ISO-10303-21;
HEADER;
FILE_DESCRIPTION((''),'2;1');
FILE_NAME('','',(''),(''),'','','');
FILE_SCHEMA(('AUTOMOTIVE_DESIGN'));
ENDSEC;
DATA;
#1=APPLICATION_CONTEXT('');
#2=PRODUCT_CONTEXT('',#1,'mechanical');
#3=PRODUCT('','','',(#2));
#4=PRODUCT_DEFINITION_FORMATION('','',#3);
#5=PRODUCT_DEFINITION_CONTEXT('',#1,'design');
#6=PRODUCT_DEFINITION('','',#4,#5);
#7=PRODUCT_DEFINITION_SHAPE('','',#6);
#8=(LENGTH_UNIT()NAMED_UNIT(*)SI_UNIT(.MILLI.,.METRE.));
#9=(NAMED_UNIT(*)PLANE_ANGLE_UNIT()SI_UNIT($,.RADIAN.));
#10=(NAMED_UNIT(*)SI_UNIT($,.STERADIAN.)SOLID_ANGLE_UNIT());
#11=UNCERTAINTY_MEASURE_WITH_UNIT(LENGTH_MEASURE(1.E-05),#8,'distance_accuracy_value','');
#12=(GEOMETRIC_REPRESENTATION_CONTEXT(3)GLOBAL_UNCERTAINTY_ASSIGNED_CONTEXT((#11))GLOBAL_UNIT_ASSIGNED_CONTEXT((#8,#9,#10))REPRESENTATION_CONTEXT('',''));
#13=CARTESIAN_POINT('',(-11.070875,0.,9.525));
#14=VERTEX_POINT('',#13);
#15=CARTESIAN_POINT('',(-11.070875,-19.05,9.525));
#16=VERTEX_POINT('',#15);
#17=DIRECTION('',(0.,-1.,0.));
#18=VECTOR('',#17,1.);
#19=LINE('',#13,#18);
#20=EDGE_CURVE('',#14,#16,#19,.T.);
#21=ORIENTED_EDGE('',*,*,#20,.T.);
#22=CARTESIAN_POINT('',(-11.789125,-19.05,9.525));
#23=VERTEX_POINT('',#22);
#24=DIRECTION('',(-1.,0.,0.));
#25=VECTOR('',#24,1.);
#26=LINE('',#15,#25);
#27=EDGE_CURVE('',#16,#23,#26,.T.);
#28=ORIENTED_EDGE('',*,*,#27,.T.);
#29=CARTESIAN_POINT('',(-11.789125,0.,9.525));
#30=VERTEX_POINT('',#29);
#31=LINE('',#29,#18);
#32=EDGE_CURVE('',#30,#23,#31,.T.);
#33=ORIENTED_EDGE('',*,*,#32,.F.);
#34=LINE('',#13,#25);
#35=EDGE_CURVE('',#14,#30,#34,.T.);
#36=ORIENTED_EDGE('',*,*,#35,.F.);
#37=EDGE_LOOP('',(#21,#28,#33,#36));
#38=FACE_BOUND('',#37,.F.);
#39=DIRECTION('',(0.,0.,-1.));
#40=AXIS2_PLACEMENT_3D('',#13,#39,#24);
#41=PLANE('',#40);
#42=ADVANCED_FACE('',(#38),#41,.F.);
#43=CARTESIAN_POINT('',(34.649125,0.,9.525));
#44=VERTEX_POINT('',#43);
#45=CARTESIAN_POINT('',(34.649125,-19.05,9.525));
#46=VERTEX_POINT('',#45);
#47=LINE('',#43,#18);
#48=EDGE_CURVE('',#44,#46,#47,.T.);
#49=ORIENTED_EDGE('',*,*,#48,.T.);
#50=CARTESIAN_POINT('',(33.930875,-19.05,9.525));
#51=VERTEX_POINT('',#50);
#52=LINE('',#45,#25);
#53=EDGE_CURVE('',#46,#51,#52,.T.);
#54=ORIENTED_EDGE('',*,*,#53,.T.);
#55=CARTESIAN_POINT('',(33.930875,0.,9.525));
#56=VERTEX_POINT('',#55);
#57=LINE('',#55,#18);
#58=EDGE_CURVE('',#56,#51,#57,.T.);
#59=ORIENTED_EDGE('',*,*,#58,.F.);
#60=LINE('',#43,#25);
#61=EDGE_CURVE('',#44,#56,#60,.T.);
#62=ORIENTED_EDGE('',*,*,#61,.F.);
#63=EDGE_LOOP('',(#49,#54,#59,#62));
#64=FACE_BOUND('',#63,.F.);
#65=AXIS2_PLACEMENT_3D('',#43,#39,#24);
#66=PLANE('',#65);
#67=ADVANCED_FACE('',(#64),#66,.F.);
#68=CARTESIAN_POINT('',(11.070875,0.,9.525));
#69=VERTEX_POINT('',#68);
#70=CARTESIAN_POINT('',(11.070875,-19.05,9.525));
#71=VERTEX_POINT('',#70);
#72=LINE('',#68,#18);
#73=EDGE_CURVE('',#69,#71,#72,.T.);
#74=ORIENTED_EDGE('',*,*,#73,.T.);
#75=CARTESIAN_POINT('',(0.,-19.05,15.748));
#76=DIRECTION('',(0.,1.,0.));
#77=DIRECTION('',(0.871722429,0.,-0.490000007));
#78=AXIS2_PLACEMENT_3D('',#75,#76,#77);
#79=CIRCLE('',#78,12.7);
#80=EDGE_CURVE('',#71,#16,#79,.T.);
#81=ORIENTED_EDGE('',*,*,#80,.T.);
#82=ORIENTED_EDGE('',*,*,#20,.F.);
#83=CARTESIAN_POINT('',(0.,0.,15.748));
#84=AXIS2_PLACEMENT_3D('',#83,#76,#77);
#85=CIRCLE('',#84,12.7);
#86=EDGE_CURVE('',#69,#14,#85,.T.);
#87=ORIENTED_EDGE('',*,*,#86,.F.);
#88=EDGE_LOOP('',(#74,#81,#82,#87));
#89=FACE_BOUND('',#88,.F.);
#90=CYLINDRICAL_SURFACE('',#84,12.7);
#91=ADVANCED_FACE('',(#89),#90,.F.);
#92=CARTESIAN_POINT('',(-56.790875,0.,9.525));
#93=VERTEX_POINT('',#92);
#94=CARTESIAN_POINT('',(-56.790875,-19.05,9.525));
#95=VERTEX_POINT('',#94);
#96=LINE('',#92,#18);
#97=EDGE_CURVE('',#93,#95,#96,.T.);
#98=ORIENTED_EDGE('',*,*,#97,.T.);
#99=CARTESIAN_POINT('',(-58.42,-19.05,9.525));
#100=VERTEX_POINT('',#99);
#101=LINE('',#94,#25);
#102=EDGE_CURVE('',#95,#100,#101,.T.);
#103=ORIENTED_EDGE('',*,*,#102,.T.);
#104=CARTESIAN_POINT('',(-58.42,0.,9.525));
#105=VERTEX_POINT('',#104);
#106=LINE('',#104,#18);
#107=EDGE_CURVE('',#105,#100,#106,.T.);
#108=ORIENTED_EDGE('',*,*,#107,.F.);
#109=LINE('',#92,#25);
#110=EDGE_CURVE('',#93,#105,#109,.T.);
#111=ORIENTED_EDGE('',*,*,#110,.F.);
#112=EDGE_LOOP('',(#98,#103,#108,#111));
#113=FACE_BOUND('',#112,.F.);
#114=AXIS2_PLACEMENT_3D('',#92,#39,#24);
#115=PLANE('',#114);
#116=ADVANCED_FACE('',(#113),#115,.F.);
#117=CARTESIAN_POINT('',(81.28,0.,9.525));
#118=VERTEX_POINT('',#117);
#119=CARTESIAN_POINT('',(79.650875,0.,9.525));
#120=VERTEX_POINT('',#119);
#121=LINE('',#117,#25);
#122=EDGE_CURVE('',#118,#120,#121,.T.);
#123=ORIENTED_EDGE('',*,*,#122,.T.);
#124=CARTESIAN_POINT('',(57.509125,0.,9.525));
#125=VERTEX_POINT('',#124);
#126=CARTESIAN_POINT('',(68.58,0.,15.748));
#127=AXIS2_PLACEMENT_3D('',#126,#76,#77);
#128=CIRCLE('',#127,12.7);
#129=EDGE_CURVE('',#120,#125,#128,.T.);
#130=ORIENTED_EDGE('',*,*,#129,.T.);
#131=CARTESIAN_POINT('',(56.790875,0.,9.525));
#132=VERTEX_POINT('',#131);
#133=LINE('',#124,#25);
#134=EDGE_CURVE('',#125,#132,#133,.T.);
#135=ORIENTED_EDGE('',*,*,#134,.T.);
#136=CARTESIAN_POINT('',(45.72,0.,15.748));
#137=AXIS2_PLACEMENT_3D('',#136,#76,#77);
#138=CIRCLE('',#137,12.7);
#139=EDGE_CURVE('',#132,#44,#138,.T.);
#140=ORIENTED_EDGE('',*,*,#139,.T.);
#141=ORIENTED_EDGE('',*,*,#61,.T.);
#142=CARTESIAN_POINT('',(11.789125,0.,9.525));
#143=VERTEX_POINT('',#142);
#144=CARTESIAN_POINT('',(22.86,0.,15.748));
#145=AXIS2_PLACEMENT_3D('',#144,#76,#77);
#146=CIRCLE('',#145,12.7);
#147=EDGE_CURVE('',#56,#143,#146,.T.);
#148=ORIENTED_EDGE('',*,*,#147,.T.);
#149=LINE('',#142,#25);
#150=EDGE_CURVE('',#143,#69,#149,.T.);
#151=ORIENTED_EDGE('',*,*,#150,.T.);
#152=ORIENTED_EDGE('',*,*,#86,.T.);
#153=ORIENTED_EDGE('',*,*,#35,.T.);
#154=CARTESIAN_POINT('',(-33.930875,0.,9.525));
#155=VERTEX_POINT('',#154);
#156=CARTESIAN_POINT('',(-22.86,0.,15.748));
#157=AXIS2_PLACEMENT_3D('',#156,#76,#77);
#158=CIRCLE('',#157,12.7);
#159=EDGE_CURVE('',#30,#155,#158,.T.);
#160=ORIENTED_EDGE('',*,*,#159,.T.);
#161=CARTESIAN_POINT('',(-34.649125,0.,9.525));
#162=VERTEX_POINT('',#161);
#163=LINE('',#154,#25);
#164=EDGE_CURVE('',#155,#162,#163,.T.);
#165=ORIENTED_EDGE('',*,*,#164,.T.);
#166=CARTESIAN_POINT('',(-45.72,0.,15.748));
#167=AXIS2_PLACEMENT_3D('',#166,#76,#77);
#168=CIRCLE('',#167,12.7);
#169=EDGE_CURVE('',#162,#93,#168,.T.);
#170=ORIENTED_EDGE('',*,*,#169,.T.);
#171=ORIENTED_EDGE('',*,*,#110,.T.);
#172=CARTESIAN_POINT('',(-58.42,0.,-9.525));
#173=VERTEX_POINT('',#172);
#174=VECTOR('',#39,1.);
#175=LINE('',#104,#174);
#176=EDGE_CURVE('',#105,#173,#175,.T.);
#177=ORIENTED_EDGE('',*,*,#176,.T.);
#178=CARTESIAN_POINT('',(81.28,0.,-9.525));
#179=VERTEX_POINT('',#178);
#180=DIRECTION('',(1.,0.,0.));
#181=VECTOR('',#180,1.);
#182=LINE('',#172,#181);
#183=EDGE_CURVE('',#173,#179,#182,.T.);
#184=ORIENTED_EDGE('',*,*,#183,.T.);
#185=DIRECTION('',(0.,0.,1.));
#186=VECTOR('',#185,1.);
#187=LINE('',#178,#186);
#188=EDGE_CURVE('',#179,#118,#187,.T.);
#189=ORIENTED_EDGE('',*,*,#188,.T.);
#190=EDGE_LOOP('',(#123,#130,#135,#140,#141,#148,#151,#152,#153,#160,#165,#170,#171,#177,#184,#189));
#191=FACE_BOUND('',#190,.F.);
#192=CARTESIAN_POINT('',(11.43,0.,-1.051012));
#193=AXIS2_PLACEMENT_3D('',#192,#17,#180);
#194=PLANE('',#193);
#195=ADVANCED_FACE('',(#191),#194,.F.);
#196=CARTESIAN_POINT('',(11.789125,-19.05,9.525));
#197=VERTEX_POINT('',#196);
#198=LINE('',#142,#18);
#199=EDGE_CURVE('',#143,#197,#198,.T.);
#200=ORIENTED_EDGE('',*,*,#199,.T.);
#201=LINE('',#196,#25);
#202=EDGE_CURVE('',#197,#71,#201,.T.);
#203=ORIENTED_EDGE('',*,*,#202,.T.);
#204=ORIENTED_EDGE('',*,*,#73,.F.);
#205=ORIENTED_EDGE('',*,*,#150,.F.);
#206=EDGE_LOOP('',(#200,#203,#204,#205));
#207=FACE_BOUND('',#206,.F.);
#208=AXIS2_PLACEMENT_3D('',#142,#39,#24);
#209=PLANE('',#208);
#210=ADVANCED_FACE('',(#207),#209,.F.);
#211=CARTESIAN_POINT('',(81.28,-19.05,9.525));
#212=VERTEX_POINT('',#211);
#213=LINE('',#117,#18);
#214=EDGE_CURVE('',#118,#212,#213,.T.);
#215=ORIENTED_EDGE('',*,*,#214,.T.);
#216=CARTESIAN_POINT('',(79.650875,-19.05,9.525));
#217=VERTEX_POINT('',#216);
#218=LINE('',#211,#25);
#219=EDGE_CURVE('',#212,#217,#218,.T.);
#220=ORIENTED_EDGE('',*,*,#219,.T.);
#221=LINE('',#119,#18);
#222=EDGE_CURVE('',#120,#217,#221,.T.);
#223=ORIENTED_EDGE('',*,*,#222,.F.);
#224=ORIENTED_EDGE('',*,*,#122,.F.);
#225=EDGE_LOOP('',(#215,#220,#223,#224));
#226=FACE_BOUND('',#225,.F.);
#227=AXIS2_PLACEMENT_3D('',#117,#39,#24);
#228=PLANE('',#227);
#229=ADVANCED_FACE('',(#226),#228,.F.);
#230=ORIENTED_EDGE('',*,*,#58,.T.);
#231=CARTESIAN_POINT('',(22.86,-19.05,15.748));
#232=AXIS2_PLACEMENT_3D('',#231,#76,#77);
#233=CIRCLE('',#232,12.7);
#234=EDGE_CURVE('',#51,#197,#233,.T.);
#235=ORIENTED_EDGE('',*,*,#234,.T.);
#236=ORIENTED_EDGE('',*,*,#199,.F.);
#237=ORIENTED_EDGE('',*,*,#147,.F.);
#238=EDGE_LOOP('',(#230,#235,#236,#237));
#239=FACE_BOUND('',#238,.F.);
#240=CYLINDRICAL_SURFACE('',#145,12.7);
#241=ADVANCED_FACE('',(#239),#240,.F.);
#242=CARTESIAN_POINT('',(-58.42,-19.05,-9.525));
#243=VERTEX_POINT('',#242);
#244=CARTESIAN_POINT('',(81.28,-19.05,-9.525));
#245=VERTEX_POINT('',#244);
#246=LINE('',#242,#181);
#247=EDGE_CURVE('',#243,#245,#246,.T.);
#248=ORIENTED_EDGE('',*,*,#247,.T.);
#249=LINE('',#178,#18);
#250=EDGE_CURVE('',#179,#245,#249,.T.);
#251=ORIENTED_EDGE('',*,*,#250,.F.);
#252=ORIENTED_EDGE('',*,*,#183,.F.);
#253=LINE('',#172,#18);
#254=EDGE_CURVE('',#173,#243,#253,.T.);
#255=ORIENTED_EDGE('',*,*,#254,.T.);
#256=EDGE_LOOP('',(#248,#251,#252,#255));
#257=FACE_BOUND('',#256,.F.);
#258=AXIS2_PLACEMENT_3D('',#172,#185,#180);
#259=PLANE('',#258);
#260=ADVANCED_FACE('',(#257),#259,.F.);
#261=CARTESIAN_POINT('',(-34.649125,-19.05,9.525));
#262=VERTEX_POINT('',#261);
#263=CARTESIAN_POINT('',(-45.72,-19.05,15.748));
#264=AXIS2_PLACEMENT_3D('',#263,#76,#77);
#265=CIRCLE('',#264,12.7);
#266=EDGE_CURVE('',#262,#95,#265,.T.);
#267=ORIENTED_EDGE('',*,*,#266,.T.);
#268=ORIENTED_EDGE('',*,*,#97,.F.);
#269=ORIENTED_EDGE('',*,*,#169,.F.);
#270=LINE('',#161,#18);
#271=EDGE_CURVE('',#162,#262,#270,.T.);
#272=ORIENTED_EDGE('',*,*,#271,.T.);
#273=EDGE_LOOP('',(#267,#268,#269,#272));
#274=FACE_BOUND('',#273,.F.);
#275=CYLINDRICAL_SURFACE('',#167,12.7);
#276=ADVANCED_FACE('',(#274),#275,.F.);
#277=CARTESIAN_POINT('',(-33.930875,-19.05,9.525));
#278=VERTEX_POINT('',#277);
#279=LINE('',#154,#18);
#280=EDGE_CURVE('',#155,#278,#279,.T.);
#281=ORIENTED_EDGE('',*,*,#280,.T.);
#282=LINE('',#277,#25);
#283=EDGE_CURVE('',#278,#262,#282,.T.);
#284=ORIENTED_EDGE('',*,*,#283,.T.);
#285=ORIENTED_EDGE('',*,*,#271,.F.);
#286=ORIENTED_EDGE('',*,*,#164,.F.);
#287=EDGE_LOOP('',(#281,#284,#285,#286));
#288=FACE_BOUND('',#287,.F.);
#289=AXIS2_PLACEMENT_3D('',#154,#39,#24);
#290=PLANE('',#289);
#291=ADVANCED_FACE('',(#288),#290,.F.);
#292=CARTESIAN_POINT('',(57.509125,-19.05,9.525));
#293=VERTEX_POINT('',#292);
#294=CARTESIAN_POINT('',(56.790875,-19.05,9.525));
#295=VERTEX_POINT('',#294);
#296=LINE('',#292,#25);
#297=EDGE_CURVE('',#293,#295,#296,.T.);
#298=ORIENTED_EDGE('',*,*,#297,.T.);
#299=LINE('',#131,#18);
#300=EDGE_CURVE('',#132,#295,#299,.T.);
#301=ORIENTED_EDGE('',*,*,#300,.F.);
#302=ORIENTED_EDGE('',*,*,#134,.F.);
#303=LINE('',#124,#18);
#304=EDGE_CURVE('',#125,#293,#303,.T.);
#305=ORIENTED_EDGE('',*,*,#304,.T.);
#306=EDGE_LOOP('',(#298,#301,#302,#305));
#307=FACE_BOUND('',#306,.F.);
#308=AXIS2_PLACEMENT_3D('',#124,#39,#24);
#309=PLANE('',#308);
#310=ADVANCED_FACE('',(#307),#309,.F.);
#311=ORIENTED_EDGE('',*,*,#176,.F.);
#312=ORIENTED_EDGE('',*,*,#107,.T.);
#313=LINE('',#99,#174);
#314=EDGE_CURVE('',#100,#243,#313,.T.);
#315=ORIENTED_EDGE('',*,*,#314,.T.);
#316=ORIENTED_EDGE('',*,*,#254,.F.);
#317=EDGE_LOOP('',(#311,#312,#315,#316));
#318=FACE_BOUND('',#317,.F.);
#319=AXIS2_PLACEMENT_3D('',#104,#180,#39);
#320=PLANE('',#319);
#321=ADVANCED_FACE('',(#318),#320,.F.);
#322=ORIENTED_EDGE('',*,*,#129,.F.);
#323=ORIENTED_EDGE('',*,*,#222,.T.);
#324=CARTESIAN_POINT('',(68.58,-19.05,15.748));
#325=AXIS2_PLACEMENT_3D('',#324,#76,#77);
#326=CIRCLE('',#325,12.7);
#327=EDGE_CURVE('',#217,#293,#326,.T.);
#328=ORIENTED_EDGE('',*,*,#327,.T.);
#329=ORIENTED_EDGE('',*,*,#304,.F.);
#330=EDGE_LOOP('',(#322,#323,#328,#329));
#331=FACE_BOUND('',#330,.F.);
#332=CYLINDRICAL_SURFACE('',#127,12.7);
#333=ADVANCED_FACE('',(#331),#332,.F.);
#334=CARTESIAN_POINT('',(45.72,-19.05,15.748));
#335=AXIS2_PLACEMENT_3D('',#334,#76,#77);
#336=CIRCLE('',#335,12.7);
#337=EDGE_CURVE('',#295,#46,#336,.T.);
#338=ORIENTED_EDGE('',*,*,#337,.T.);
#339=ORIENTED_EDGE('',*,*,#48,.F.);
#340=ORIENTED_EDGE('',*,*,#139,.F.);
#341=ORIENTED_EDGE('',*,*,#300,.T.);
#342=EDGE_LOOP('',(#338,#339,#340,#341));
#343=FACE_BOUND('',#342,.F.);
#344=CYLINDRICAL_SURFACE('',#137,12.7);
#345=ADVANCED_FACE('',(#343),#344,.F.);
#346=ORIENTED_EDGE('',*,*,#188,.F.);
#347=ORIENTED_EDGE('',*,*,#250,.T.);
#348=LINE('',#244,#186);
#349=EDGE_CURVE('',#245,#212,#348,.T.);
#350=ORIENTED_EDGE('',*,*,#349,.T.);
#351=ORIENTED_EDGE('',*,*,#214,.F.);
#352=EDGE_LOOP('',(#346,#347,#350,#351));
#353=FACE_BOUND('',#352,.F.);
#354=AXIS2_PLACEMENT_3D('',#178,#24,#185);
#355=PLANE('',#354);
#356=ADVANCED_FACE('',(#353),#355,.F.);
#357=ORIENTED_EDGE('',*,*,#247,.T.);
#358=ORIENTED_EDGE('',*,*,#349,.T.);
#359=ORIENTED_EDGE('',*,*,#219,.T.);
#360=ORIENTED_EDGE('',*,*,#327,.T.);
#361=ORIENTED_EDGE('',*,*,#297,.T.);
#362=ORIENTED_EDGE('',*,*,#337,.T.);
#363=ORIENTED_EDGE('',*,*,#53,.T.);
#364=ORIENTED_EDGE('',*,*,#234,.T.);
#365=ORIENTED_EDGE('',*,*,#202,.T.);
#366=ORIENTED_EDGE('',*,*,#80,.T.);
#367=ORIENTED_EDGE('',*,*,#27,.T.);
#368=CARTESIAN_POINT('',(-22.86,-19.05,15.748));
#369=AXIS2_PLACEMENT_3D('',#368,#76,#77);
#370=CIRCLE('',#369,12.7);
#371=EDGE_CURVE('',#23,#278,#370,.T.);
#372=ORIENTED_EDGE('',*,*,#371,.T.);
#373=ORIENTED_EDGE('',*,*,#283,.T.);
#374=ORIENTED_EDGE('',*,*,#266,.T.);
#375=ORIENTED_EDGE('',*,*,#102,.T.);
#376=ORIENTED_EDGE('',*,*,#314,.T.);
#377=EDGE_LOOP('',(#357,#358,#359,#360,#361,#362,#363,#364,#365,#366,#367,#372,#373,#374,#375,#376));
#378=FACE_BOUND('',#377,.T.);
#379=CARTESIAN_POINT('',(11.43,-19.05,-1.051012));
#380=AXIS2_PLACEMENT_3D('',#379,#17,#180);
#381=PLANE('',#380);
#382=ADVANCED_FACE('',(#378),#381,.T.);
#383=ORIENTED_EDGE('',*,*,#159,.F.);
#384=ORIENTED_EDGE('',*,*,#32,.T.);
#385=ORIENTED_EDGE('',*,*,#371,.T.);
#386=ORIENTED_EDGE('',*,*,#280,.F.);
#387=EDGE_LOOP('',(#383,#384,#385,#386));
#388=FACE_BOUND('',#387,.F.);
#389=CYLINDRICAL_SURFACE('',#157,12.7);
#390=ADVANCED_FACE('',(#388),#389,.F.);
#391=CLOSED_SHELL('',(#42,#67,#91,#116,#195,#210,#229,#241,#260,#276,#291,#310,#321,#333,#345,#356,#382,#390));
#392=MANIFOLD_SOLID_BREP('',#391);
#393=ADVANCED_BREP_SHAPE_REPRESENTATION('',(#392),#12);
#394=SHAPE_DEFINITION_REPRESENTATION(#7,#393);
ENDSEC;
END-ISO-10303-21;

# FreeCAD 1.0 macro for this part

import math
import FreeCAD as App
import Part
import Sketcher
Q = App.Units.Quantity

doc = App.newDocument("Part")
body = doc.addObject("PartDesign::Body", "Body")

sketch1 = body.newObject("Sketcher::SketchObject", "Sketch")
sketch1.AttachmentSupport = (doc.getObject("XZ_Plane"), [""])
sketch1.MapMode = "FlatFace"
sketch1.addGeometry(Part.LineSegment(App.Vector(-56.8, 9.5, 0), App.Vector(-58.4, 9.5, 0)), False)
sketch1.addGeometry(Part.LineSegment(App.Vector(-58.4, 9.5, 0), App.Vector(-58.4, -9.5, 0)), False)
sketch1.addGeometry(Part.LineSegment(App.Vector(-58.4, -9.5, 0), App.Vector(81.3, -9.5, 0)), False)
sketch1.addGeometry(Part.LineSegment(App.Vector(81.3, -9.5, 0), App.Vector(81.3, 9.5, 0)), False)
sketch1.addGeometry(Part.LineSegment(App.Vector(81.3, 9.5, 0), App.Vector(79.7, 9.5, 0)), False)
sketch1.addGeometry(Part.ArcOfCircle(Part.Circle(App.Vector(68.6, 15.7, 0), App.Vector(0, 0, 1), 12.7), math.radians(-151), math.radians(-29)), False)
sketch1.addGeometry(Part.LineSegment(App.Vector(57.5, 9.5, 0), App.Vector(56.8, 9.5, 0)), False)
sketch1.addGeometry(Part.ArcOfCircle(Part.Circle(App.Vector(45.7, 15.7, 0), App.Vector(0, 0, 1), 12.7), math.radians(-151), math.radians(-29)), False)
sketch1.addGeometry(Part.LineSegment(App.Vector(34.6, 9.5, 0), App.Vector(33.9, 9.5, 0)), False)
sketch1.addGeometry(Part.ArcOfCircle(Part.Circle(App.Vector(22.9, 15.7, 0), App.Vector(0, 0, 1), 12.7), math.radians(-151), math.radians(-29)), False)
sketch1.addGeometry(Part.LineSegment(App.Vector(11.8, 9.5, 0), App.Vector(11.1, 9.5, 0)), False)
sketch1.addGeometry(Part.ArcOfCircle(Part.Circle(App.Vector(0, 15.7, 0), App.Vector(0, 0, 1), 12.7), math.radians(-151), math.radians(-29)), False)
sketch1.addGeometry(Part.LineSegment(App.Vector(-11.1, 9.5, 0), App.Vector(-11.8, 9.5, 0)), False)
sketch1.addGeometry(Part.ArcOfCircle(Part.Circle(App.Vector(-22.9, 15.7, 0), App.Vector(0, 0, 1), 12.7), math.radians(-151), math.radians(-29)), False)
sketch1.addGeometry(Part.LineSegment(App.Vector(-33.9, 9.5, 0), App.Vector(-34.6, 9.5, 0)), False)
sketch1.addGeometry(Part.ArcOfCircle(Part.Circle(App.Vector(-45.7, 15.7, 0), App.Vector(0, 0, 1), 12.7), math.radians(-151), math.radians(-29)), False)
sketch1.addConstraint(Sketcher.Constraint("Coincident", 0, 2, 1, 1))
sketch1.addConstraint(Sketcher.Constraint("Coincident", 1, 2, 2, 1))
sketch1.addConstraint(Sketcher.Constraint("Coincident", 2, 2, 3, 1))
sketch1.addConstraint(Sketcher.Constraint("Coincident", 3, 2, 4, 1))
sketch1.addConstraint(Sketcher.Constraint("Coincident", 4, 2, 5, 2))
sketch1.addConstraint(Sketcher.Constraint("Coincident", 5, 1, 6, 1))
sketch1.addConstraint(Sketcher.Constraint("Coincident", 6, 2, 7, 2))
sketch1.addConstraint(Sketcher.Constraint("Coincident", 7, 1, 8, 1))
sketch1.addConstraint(Sketcher.Constraint("Coincident", 8, 2, 9, 2))
sketch1.addConstraint(Sketcher.Constraint("Coincident", 9, 1, 10, 1))
sketch1.addConstraint(Sketcher.Constraint("Coincident", 10, 2, 11, 2))
sketch1.addConstraint(Sketcher.Constraint("Coincident", 11, 1, 12, 1))
sketch1.addConstraint(Sketcher.Constraint("Coincident", 12, 2, 13, 2))
sketch1.addConstraint(Sketcher.Constraint("Coincident", 13, 1, 14, 1))
sketch1.addConstraint(Sketcher.Constraint("Coincident", 14, 2, 15, 2))
sketch1.addConstraint(Sketcher.Constraint("Coincident", 15, 1, 0, 1))
sketch1.addConstraint(Sketcher.Constraint("Horizontal", 0))
sketch1.addConstraint(Sketcher.Constraint("Vertical", 1))
sketch1.addConstraint(Sketcher.Constraint("Horizontal", 2))
sketch1.addConstraint(Sketcher.Constraint("Vertical", 3))
sketch1.addConstraint(Sketcher.Constraint("Horizontal", 4))
sketch1.addConstraint(Sketcher.Constraint("Horizontal", 6))
sketch1.addConstraint(Sketcher.Constraint("Horizontal", 8))
sketch1.addConstraint(Sketcher.Constraint("Horizontal", 10))
sketch1.addConstraint(Sketcher.Constraint("Horizontal", 12))
sketch1.addConstraint(Sketcher.Constraint("Horizontal", 14))
sketch1.addConstraint(Sketcher.Constraint("Equal", 5, 7))
sketch1.addConstraint(Sketcher.Constraint("Equal", 7, 9))
sketch1.addConstraint(Sketcher.Constraint("Equal", 9, 11))
sketch1.addConstraint(Sketcher.Constraint("Equal", 11, 13))
sketch1.addConstraint(Sketcher.Constraint("Equal", 13, 15))
sketch1.addConstraint(Sketcher.Constraint("Symmetric", 9, 3, 13, 3, -2))
sketch1.addConstraint(Sketcher.Constraint("Symmetric", 7, 3, 15, 3, -2))
sketch1.addConstraint(Sketcher.Constraint("Symmetric", 10, 2, 11, 1, -2))
sketch1.addConstraint(Sketcher.Constraint("Horizontal", 5, 3, 7, 3))
sketch1.addConstraint(Sketcher.Constraint("Horizontal", 7, 3, 9, 3))
sketch1.addConstraint(Sketcher.Constraint("Horizontal", 9, 3, 11, 3))
sketch1.addConstraint(Sketcher.Constraint("Horizontal", 0, 2, 3, 2))
sketch1.addConstraint(Sketcher.Constraint("Horizontal", 4, 2, 5, 1))
sketch1.addConstraint(Sketcher.Constraint("Horizontal", 6, 2, 7, 1))
sketch1.addConstraint(Sketcher.Constraint("Horizontal", 8, 2, 9, 1))
sketch1.addConstraint(Sketcher.Constraint("Horizontal", 12, 2, 13, 1))
sketch1.addConstraint(Sketcher.Constraint("Equal", 0, 4))
sketch1.addConstraint(Sketcher.Constraint("Equal", 6, 8))
sketch1.addConstraint(Sketcher.Constraint("Equal", 8, 10))
sketch1.addConstraint(Sketcher.Constraint("Radius", 5, Q("0.5 in")))
sketch1.addConstraint(Sketcher.Constraint("DistanceX", 2, 1, 2, 2, Q("5.5 in")))
sketch1.addConstraint(Sketcher.Constraint("DistanceY", 1, 2, 1, 1, Q("0.75 in")))
sketch1.addConstraint(Sketcher.Constraint("DistanceX", -1, 1, 5, 3, Q("2.7 in")))
sketch1.addConstraint(Sketcher.Constraint("DistanceY", -1, 1, 5, 3, Q("0.62 in")))
sketch1.addConstraint(Sketcher.Constraint("DistanceY", -1, 1, 0, 2, Q("0.375 in")))
pad1 = body.newObject("PartDesign::Pad", "Pad")
pad1.Profile = sketch1
pad1.Length = Q("0.75 in")

doc.recompute()
